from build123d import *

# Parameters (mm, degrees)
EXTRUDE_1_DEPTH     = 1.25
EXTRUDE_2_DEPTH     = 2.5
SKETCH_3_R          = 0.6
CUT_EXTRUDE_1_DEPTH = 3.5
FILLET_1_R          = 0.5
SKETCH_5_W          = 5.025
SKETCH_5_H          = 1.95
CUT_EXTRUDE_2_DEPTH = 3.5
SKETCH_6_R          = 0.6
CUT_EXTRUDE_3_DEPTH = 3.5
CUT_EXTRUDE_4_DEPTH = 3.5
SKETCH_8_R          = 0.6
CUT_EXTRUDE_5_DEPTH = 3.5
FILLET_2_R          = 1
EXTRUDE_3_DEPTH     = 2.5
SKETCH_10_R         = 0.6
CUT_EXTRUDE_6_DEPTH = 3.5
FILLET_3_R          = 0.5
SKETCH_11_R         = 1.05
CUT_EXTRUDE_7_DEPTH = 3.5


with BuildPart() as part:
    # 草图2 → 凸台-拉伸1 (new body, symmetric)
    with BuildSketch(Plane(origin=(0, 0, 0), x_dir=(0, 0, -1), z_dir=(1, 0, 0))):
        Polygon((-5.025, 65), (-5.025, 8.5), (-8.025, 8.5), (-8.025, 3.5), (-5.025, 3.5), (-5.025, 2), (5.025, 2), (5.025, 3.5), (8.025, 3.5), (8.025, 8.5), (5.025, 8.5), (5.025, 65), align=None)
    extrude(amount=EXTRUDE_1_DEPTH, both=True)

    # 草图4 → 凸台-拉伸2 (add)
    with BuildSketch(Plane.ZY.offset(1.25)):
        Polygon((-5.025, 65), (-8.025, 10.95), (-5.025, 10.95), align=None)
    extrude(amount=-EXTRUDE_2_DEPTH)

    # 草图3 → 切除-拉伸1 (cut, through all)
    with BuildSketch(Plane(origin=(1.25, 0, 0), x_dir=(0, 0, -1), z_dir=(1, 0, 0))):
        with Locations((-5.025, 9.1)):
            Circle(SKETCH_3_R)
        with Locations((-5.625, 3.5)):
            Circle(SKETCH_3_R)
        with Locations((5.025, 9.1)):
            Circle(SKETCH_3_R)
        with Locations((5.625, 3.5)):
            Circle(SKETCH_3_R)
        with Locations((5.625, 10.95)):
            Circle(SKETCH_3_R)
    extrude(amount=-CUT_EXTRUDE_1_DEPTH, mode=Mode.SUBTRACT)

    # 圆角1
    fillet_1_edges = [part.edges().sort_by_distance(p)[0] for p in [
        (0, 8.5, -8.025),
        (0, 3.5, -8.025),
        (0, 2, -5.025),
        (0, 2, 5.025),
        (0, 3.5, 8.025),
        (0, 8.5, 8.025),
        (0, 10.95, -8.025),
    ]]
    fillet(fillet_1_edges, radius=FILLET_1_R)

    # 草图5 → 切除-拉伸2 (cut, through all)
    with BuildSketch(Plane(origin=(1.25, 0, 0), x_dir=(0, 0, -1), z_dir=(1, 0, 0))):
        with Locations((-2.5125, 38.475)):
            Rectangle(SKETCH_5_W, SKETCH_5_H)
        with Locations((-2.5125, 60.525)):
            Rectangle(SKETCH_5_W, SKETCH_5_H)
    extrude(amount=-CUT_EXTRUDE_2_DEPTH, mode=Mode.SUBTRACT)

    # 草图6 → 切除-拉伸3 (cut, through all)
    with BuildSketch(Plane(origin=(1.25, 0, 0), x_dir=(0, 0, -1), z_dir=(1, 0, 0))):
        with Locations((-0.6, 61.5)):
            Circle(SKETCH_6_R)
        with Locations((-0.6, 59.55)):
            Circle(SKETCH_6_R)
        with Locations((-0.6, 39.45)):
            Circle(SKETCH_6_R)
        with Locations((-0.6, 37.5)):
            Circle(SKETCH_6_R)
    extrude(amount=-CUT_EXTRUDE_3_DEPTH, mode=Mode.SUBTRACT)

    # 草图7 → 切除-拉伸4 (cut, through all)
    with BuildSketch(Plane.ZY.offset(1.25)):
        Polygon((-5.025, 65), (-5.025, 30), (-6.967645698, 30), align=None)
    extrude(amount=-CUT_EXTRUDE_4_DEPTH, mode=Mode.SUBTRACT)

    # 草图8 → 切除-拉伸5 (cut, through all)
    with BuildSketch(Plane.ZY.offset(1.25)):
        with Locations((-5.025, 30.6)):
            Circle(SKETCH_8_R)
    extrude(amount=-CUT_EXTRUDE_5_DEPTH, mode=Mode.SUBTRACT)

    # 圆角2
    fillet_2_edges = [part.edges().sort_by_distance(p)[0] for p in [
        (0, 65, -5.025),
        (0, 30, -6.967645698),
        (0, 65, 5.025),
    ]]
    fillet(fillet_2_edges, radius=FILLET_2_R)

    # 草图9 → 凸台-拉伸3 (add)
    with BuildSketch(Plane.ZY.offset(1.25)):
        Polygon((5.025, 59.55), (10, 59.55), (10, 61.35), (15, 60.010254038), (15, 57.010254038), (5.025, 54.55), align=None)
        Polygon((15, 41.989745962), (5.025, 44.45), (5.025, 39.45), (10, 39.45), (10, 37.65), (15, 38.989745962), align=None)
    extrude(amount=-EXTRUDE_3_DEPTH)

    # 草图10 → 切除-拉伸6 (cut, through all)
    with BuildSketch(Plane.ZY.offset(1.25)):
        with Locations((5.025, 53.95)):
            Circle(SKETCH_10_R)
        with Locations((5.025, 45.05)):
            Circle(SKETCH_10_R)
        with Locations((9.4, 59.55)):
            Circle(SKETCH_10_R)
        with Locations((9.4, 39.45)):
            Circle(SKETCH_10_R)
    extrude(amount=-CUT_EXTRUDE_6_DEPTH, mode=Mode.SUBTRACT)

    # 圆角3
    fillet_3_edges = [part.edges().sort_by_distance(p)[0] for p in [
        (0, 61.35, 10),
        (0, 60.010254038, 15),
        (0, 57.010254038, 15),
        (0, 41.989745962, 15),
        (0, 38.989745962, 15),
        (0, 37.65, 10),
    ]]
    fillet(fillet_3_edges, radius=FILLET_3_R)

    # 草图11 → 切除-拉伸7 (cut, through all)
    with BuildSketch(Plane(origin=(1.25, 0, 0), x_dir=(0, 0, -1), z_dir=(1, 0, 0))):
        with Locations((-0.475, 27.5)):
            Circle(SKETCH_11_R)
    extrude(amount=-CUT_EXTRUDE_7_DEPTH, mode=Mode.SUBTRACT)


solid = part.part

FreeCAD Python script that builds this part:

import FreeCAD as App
import Part
import Sketcher
from FreeCAD import Vector
Q = App.Units.Quantity


def edges_at(feature, points):
    """Names of the edges that pass closest to the given points."""
    edges = feature.Shape.Edges
    near = lambda p: min(range(len(edges)), key=lambda i: edges[i].distToShape(Part.Vertex(*p))[0])
    return sorted({f"Edge{near(p) + 1}" for p in points})


def add_polygon(sketch, points):
    """Adds a closed chain of lines whose ends are joined by coincident constraints."""
    first, n = sketch.GeometryCount, len(points)
    for a, b in zip(points, points[1:] + points[:1]):
        sketch.addGeometry(Part.LineSegment(App.Vector(*a, 0), App.Vector(*b, 0)), False)
    for i in range(n):
        sketch.addConstraint(Sketcher.Constraint("Coincident", first + i, 2, first + (i + 1) % n, 1))

doc = App.newDocument("Part")
body = doc.addObject("PartDesign::Body", "Body")

# Sketch on YZ plane
sketch1 = body.newObject("Sketcher::SketchObject", "Sketch")
sketch1.AttachmentSupport = (doc.getObject("YZ_Plane"), [""])
sketch1.MapMode = "FlatFace"
add_polygon(sketch1, [(65, 5), (8.5, 5), (8.5, 8), (3.5, 8), (3.5, 5), (2, 5), (2, -5), (3.5, -5), (3.5, -8), (8.5, -8), (8.5, -5), (65, -5)])  # lines 0-11
sketch1.addConstraint([
    Sketcher.Constraint("Horizontal", 0),
    Sketcher.Constraint("Vertical", 1),
    Sketcher.Constraint("Horizontal", 2),
    Sketcher.Constraint("Vertical", 3),
    Sketcher.Constraint("Horizontal", 4),
    Sketcher.Constraint("Vertical", 5),
    Sketcher.Constraint("Horizontal", 6),
    Sketcher.Constraint("Vertical", 7),
    Sketcher.Constraint("Horizontal", 8),
    Sketcher.Constraint("Vertical", 9),
    Sketcher.Constraint("Horizontal", 10),
    Sketcher.Constraint("Vertical", 11),
    Sketcher.Constraint("Symmetric", 3, 2, 6, 2, -1),
    Sketcher.Constraint("Symmetric", 1, 2, 8, 2, -1),
    Sketcher.Constraint("Horizontal", 0, 2, 3, 2),
    Sketcher.Constraint("Horizontal", 6, 2, 9, 2),
    Sketcher.Constraint("DistanceX", 2, 2, 2, 1, Q("5 mm")),
    Sketcher.Constraint("DistanceY", 1, 1, 1, 2, Q("3 mm")),
    Sketcher.Constraint("DistanceX", 0, 2, 0, 1, Q("56.5 mm")),
    Sketcher.Constraint("DistanceX", 4, 2, 4, 1, Q("1.5 mm")),
    Sketcher.Constraint("DistanceX", -1, 1, 4, 2, Q("2 mm")),
    Sketcher.Constraint("DistanceY", 5, 2, 5, 1, Q("10.05 mm")),
])
pad1 = body.newObject("PartDesign::Pad", "Pad")
pad1.Profile = sketch1
pad1.Length = 2.5
pad1.Midplane = True

# Sketch on YZ plane
sketch2 = body.newObject("Sketcher::SketchObject", "Sketch001")
sketch2.AttachmentSupport = (doc.getObject("YZ_Plane"), [""])
sketch2.MapMode = "FlatFace"
sketch2.AttachmentOffset = App.Placement(Vector(0, 0, -1.25), App.Rotation())
add_polygon(sketch2, [(65, -5), (10.9, -8), (10.9, -5)])  # lines 0-2
sketch2.addConstraint([
    Sketcher.Constraint("Vertical", 1),
    Sketcher.Constraint("Horizontal", 2),
    Sketcher.Constraint("DistanceY", 1, 1, 1, 2, Q("3 mm")),
    Sketcher.Constraint("DistanceX", -1, 1, 2, 2, Q("65 mm")),
    Sketcher.Constraint("DistanceX", 2, 1, 2, 2, Q("54.05 mm")),
    Sketcher.Constraint("DistanceY", 0, 2, -1, 1, Q("8.025 mm")),
])
pad2 = body.newObject("PartDesign::Pad", "Pad001")
pad2.Profile = sketch2
pad2.Length = 2.5

# Sketch on YZ plane
sketch3 = body.newObject("Sketcher::SketchObject", "Sketch002")
sketch3.AttachmentSupport = (doc.getObject("YZ_Plane"), [""])
sketch3.MapMode = "FlatFace"
sketch3.AttachmentOffset = App.Placement(Vector(0, 0, 1.25), App.Rotation())
sketch3.addGeometry([
    Part.Circle(Vector(9.1, 5, 0), Vector(0, 0, 1), 0.6),  # 0
    Part.Circle(Vector(3.5, 5.6, 0), Vector(0, 0, 1), 0.6),  # 1
    Part.Circle(Vector(9.1, -5, 0), Vector(0, 0, 1), 0.6),  # 2
    Part.Circle(Vector(3.5, -5.6, 0), Vector(0, 0, 1), 0.6),  # 3
    Part.Circle(Vector(10.9, -5.6, 0), Vector(0, 0, 1), 0.6),  # 4
], False)
sketch3.addConstraint([
    Sketcher.Constraint("Equal", 0, 1),
    Sketcher.Constraint("Equal", 1, 2),
    Sketcher.Constraint("Equal", 2, 3),
    Sketcher.Constraint("Equal", 3, 4),
    Sketcher.Constraint("Symmetric", 0, 3, 2, 3, -1),
    Sketcher.Constraint("Symmetric", 1, 3, 3, 3, -1),
    Sketcher.Constraint("Horizontal", 3, 3, 4, 3),
    Sketcher.Constraint("Diameter", 0, Q("1.2 mm")),
    Sketcher.Constraint("DistanceX", -1, 1, 0, 3, Q("9.1 mm")),
    Sketcher.Constraint("DistanceX", -1, 1, 1, 3, Q("3.5 mm")),
    Sketcher.Constraint("DistanceY", 0, 3, 1, 3, Q("0.6 mm")),
    Sketcher.Constraint("DistanceX", -1, 1, 4, 3, Q("10.95 mm")),
    Sketcher.Constraint("DistanceY", 2, 3, 0, 3, Q("10.05 mm")),
])
pocket1 = body.newObject("PartDesign::Pocket", "Pocket")
pocket1.Profile = sketch3
pocket1.Type = "ThroughAll"
doc.recompute()

fillet = body.newObject("PartDesign::Fillet", "Fillet")
fillet.Base = (pocket1, edges_at(pocket1, [
    (0, 8.5, -8.025),
    (0, 3.5, -8.025),
    (0, 2, -5.025),
    (0, 2, 5.025),
    (0, 3.5, 8.025),
    (0, 8.5, 8.025),
    (0, 10.95, -8.025),
]))
fillet.Radius = 0.5

# Sketch on YZ plane
sketch4 = body.newObject("Sketcher::SketchObject", "Sketch003")
sketch4.AttachmentSupport = (doc.getObject("YZ_Plane"), [""])
sketch4.MapMode = "FlatFace"
sketch4.AttachmentOffset = App.Placement(Vector(0, 0, 1.25), App.Rotation())
add_polygon(sketch4, [(39.5, 5), (37.5, 5), (37.5, 0), (39.5, 0)])  # lines 0-3
add_polygon(sketch4, [(61.5, 5), (59.5, 5), (59.5, 0), (61.5, 0)])  # lines 4-7
sketch4.addConstraint([
    Sketcher.Constraint("Horizontal", 0),
    Sketcher.Constraint("Vertical", 1),
    Sketcher.Constraint("Horizontal", 2),
    Sketcher.Constraint("Vertical", 3),
    Sketcher.Constraint("Horizontal", 4),
    Sketcher.Constraint("Vertical", 5),
    Sketcher.Constraint("Horizontal", 6),
    Sketcher.Constraint("Vertical", 7),
    Sketcher.Constraint("PointOnObject", 1, 2, -1),
    Sketcher.Constraint("PointOnObject", 5, 2, -1),
    Sketcher.Constraint("Horizontal", 3, 2, 4, 2),
    Sketcher.Constraint("Equal", 2, 4),
    Sketcher.Constraint("DistanceX", 1, 2, 6, 2, Q("24 mm")),
    Sketcher.Constraint("DistanceX", 0, 2, 0, 1, Q("1.95 mm")),
    Sketcher.Constraint("DistanceX", -1, 1, 0, 2, Q("37.5 mm")),
    Sketcher.Constraint("DistanceY", 1, 2, 1, 1, Q("5.025 mm")),
])
pocket2 = body.newObject("PartDesign::Pocket", "Pocket001")
pocket2.Profile = sketch4
pocket2.Type = "ThroughAll"

# Sketch on YZ plane
sketch5 = body.newObject("Sketcher::SketchObject", "Sketch004")
sketch5.AttachmentSupport = (doc.getObject("YZ_Plane"), [""])
sketch5.MapMode = "FlatFace"
sketch5.AttachmentOffset = App.Placement(Vector(0, 0, 1.25), App.Rotation())
sketch5.addGeometry([
    Part.Circle(Vector(61.5, 0.6, 0), Vector(0, 0, 1), 0.6),
    Part.Circle(Vector(59.5, 0.6, 0), Vector(0, 0, 1), 0.6),
    Part.Circle(Vector(39.5, 0.6, 0), Vector(0, 0, 1), 0.6),
    Part.Circle(Vector(37.5, 0.6, 0), Vector(0, 0, 1), 0.6),
], False)
sketch5.addConstraint([
    Sketcher.Constraint("Equal", 0, 1),
    Sketcher.Constraint("Equal", 1, 2),
    Sketcher.Constraint("Equal", 2, 3),
    Sketcher.Constraint("Horizontal", 0, 3, 1, 3),
    Sketcher.Constraint("Horizontal", 1, 3, 2, 3),
    Sketcher.Constraint("Horizontal", 2, 3, 3, 3),
    Sketcher.Constraint("Diameter", 0, Q("1.2 mm")),
    Sketcher.Constraint("DistanceX", 3, 3, 0, 3, Q("24 mm")),
    Sketcher.Constraint("DistanceX", -1, 1, 0, 3, Q("61.5 mm")),
    Sketcher.Constraint("DistanceY", -1, 1, 0, 3, Q("0.6 mm")),
    Sketcher.Constraint("DistanceX", 2, 3, 1, 3, Q("20.1 mm")),
    Sketcher.Constraint("DistanceX", -1, 1, 1, 3, Q("59.55 mm")),
])
pocket3 = body.newObject("PartDesign::Pocket", "Pocket002")
pocket3.Profile = sketch5
pocket3.Type = "ThroughAll"

# Sketch on YZ plane
sketch6 = body.newObject("Sketcher::SketchObject", "Sketch005")
sketch6.AttachmentSupport = (doc.getObject("YZ_Plane"), [""])
sketch6.MapMode = "FlatFace"
sketch6.AttachmentOffset = App.Placement(Vector(0, 0, -1.25), App.Rotation())
add_polygon(sketch6, [(30, -5), (65, -5), (30, -7)])  # lines 0-2
sketch6.addConstraint([
    Sketcher.Constraint("Horizontal", 0),
    Sketcher.Constraint("Vertical", 2),
    Sketcher.Constraint("DistanceX", 0, 1, 0, 2, Q("35 mm")),
    Sketcher.Constraint("DistanceX", -1, 1, 0, 2, Q("65 mm")),
    Sketcher.Constraint("DistanceY", 0, 2, -1, 1, Q("5.025 mm")),
    Sketcher.Constraint("Distance", 1, Q("35.053871 mm")),
])
pocket4 = body.newObject("PartDesign::Pocket", "Pocket003")
pocket4.Profile = sketch6
pocket4.Type = "ThroughAll"
pocket4.Reversed = True

# Sketch on YZ plane
sketch7 = body.newObject("Sketcher::SketchObject", "Sketch006")
sketch7.AttachmentSupport = (doc.getObject("YZ_Plane"), [""])
sketch7.MapMode = "FlatFace"
sketch7.AttachmentOffset = App.Placement(Vector(0, 0, -1.25), App.Rotation())
sketch7.addGeometry(Part.Circle(Vector(30.6, -5, 0), Vector(0, 0, 1), 0.6), False)
sketch7.addConstraint([
    Sketcher.Constraint("Diameter", 0, Q("1.2 mm")),
    Sketcher.Constraint("DistanceX", -1, 1, 0, 3, Q("30.6 mm")),
    Sketcher.Constraint("DistanceY", 0, 3, -1, 1, Q("5.025 mm")),
])
pocket5 = body.newObject("PartDesign::Pocket", "Pocket004")
pocket5.Profile = sketch7
pocket5.Type = "ThroughAll"
pocket5.Reversed = True
doc.recompute()

fillet2 = body.newObject("PartDesign::Fillet", "Fillet001")
fillet2.Base = (pocket5, edges_at(pocket5, [(0, 65, -5.025), (0, 30, -6.968), (0, 65, 5.025)]))
fillet2.Radius = 1

# Sketch on YZ plane
sketch8 = body.newObject("Sketcher::SketchObject", "Sketch007")
sketch8.AttachmentSupport = (doc.getObject("YZ_Plane"), [""])
sketch8.MapMode = "FlatFace"
sketch8.AttachmentOffset = App.Placement(Vector(0, 0, -1.25), App.Rotation())
add_polygon(sketch8, [(59.5, 10), (59.5, 5), (54.5, 5), (57, 15), (60, 15), (61.4, 10)])  # lines 0-5
add_polygon(sketch8, [(42, 15), (44.5, 5), (39.5, 5), (39.5, 10), (37.6, 10), (39, 15)])  # lines 6-11
sketch8.addConstraint([
    Sketcher.Constraint("Vertical", 0),
    Sketcher.Constraint("Horizontal", 1),
    Sketcher.Constraint("Horizontal", 3),
    Sketcher.Constraint("Horizontal", 5),
    Sketcher.Constraint("Horizontal", 7),
    Sketcher.Constraint("Vertical", 8),
    Sketcher.Constraint("Horizontal", 9),
    Sketcher.Constraint("Horizontal", 11),
    Sketcher.Constraint("Horizontal", 1, 2, 6, 2),
    Sketcher.Constraint("Horizontal", 5, 2, 8, 2),
    Sketcher.Constraint("Horizontal", 3, 2, 10, 2),
    Sketcher.Constraint("Equal", 1, 7),
    Sketcher.Constraint("Equal", 5, 9),
    Sketcher.Constraint("Equal", 3, 11),
    Sketcher.Constraint("Equal", 2, 6),
    Sketcher.Constraint("DistanceX", 1, 2, 1, 1, Q("5 mm")),
    Sketcher.Constraint("DistanceX", 3, 1, 3, 2, Q("3 mm")),
    Sketcher.Constraint("Angle", 4, Q("-75 deg")),
    Sketcher.Constraint("DistanceX", 5, 2, 5, 1, Q("1.8 mm")),
    Sketcher.Constraint("DistanceY", -1, 1, 2, 2, Q("15 mm")),
    Sketcher.Constraint("DistanceY", -1, 1, 4, 2, Q("10 mm")),
    Sketcher.Constraint("DistanceX", 6, 2, 1, 2, Q("10.1 mm")),
    Sketcher.Constraint("DistanceY", 0, 2, 0, 1, Q("4.975 mm")),
    Sketcher.Constraint("DistanceX", -1, 1, 0, 2, Q("59.55 mm")),
])
pad3 = body.newObject("PartDesign::Pad", "Pad002")
pad3.Profile = sketch8
pad3.Length = 2.5

# Sketch on YZ plane
sketch9 = body.newObject("Sketcher::SketchObject", "Sketch008")
sketch9.AttachmentSupport = (doc.getObject("YZ_Plane"), [""])
sketch9.MapMode = "FlatFace"
sketch9.AttachmentOffset = App.Placement(Vector(0, 0, -1.25), App.Rotation())
sketch9.addGeometry([
    Part.Circle(Vector(54, 5, 0), Vector(0, 0, 1), 0.6),
    Part.Circle(Vector(45, 5, 0), Vector(0, 0, 1), 0.6),
    Part.Circle(Vector(59.5, 9.4, 0), Vector(0, 0, 1), 0.6),
    Part.Circle(Vector(39.5, 9.4, 0), Vector(0, 0, 1), 0.6),
], False)
sketch9.addConstraint([
    Sketcher.Constraint("Equal", 0, 1),
    Sketcher.Constraint("Equal", 1, 2),
    Sketcher.Constraint("Equal", 2, 3),
    Sketcher.Constraint("Horizontal", 0, 3, 1, 3),
    Sketcher.Constraint("Horizontal", 2, 3, 3, 3),
    Sketcher.Constraint("Diameter", 0, Q("1.2 mm")),
    Sketcher.Constraint("DistanceY", -1, 1, 2, 3, Q("9.4 mm")),
    Sketcher.Constraint("DistanceX", 1, 3, 0, 3, Q("8.9 mm")),
    Sketcher.Constraint("DistanceX", 0, 3, 2, 3, Q("5.6 mm")),
    Sketcher.Constraint("DistanceX", 3, 3, 1, 3, Q("5.6 mm")),
    Sketcher.Constraint("DistanceX", -1, 1, 0, 3, Q("53.95 mm")),
    Sketcher.Constraint("DistanceY", -1, 1, 0, 3, Q("5.025 mm")),
])
pocket6 = body.newObject("PartDesign::Pocket", "Pocket005")
pocket6.Profile = sketch9
pocket6.Type = "ThroughAll"
pocket6.Reversed = True
doc.recompute()

fillet3 = body.newObject("PartDesign::Fillet", "Fillet002")
fillet3.Base = (pocket6, edges_at(pocket6, [
    (0, 61.35, 10),
    (0, 60.01, 15),
    (0, 57.01, 15),
    (0, 41.99, 15),
    (0, 38.99, 15),
    (0, 37.65, 10),
]))
fillet3.Radius = 0.5

# Sketch on YZ plane
sketch10 = body.newObject("Sketcher::SketchObject", "Sketch009")
sketch10.AttachmentSupport = (doc.getObject("YZ_Plane"), [""])
sketch10.MapMode = "FlatFace"
sketch10.AttachmentOffset = App.Placement(Vector(0, 0, 1.25), App.Rotation())
sketch10.addGeometry(Part.Circle(Vector(27.5, 0.5, 0), Vector(0, 0, 1), 1.1), False)
sketch10.addConstraint([
    Sketcher.Constraint("Diameter", 0, Q("2.1 mm")),
    Sketcher.Constraint("DistanceX", -1, 1, 0, 3, Q("27.5 mm")),
    Sketcher.Constraint("DistanceY", -1, 1, 0, 3, Q("0.475 mm")),
])
pocket7 = body.newObject("PartDesign::Pocket", "Pocket006")
pocket7.Profile = sketch10
pocket7.Type = "ThroughAll"

doc.recompute()
